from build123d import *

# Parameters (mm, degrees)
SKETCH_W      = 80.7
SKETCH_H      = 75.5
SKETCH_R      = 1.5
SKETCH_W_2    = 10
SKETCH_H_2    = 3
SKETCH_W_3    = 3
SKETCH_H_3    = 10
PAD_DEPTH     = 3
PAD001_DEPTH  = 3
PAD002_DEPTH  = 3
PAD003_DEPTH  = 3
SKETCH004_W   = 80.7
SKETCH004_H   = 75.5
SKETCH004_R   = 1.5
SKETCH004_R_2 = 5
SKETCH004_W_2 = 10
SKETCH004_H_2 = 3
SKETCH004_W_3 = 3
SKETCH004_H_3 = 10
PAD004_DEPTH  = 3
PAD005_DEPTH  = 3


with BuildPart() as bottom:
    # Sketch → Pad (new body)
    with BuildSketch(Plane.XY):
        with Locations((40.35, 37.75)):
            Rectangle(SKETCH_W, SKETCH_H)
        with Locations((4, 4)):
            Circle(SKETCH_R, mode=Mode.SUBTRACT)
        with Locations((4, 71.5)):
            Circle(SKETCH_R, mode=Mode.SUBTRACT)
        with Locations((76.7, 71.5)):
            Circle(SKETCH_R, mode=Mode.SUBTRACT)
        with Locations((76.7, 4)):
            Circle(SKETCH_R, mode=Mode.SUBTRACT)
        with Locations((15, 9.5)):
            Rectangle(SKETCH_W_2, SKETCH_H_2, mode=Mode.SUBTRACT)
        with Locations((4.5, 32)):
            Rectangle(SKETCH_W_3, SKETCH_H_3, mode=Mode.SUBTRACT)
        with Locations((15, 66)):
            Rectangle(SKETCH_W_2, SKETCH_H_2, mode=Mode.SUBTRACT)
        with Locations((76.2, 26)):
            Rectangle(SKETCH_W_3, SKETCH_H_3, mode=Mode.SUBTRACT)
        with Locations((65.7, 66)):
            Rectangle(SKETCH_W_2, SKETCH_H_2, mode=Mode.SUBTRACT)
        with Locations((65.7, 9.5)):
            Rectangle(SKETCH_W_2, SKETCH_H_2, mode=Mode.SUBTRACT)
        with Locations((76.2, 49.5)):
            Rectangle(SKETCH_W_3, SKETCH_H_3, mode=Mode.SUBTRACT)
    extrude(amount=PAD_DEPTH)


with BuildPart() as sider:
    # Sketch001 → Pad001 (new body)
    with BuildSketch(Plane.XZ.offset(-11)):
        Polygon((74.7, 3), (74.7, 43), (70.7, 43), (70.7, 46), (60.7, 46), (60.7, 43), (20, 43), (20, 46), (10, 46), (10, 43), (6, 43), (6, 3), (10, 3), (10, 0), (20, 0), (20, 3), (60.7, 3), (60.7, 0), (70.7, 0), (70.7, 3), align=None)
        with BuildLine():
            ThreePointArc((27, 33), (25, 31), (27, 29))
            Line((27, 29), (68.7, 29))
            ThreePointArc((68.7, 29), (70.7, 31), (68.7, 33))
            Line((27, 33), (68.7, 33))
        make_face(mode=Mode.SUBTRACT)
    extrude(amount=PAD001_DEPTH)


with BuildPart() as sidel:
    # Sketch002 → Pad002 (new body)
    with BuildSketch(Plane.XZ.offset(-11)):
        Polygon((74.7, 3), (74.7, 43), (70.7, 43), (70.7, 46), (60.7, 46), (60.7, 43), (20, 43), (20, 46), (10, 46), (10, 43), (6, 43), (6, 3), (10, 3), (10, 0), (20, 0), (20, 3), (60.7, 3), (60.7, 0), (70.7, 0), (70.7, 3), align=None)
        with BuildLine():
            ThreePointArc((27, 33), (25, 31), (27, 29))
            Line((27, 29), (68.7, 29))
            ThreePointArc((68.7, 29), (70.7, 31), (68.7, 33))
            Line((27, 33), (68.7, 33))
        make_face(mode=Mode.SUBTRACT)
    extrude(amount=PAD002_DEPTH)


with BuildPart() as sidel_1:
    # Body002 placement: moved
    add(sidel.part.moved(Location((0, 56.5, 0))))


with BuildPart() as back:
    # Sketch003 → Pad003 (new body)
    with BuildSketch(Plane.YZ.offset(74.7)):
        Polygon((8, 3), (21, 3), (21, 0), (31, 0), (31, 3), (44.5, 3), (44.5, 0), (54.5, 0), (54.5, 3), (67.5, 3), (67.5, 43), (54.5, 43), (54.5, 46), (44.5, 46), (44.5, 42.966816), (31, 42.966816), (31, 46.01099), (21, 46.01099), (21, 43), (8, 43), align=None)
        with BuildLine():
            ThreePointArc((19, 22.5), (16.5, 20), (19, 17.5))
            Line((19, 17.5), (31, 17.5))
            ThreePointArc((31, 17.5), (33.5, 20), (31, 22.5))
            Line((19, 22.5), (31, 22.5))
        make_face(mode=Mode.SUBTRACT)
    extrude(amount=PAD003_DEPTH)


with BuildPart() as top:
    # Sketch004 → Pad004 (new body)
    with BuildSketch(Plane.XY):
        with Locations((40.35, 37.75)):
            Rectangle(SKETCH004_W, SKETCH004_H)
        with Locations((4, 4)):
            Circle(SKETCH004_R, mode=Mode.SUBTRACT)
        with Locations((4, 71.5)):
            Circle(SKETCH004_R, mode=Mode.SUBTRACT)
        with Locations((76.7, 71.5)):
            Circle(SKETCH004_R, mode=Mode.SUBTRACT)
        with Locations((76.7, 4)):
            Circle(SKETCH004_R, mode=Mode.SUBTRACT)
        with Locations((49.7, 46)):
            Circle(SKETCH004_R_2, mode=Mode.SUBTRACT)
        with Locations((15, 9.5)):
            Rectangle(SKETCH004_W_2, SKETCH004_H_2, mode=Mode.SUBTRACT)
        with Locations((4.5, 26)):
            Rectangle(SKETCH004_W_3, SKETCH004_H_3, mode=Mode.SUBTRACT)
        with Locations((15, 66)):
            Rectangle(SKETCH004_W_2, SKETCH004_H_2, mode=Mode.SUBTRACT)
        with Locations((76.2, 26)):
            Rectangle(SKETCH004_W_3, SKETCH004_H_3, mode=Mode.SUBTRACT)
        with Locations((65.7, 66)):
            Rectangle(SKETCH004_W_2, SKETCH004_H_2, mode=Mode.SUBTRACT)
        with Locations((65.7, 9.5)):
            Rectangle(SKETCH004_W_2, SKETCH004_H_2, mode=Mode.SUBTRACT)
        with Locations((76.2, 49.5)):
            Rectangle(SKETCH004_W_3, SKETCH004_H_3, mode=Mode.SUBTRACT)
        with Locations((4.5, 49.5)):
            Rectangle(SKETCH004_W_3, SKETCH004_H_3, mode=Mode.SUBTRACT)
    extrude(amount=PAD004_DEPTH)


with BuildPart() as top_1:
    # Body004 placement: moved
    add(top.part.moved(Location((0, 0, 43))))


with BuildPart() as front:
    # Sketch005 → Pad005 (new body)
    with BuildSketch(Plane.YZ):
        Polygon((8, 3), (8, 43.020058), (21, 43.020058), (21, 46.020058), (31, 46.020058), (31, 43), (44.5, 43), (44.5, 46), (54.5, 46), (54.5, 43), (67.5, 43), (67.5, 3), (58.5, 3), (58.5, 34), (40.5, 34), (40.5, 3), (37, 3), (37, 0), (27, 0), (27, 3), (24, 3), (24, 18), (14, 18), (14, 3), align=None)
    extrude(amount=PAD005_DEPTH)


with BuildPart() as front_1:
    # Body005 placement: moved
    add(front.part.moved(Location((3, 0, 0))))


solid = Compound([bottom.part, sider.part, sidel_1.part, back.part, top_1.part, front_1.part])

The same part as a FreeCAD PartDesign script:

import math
import FreeCAD as App
import Part
import Sketcher

V = App.Vector
Q = App.Units.Quantity


def add_polygon(sketch, points):
    """Adds a closed chain of lines whose ends are joined by coincident constraints."""
    first, n = sketch.GeometryCount, len(points)
    for a, b in zip(points, points[1:] + points[:1]):
        sketch.addGeometry(Part.LineSegment(App.Vector(*a, 0), App.Vector(*b, 0)), False)
    for i in range(n):
        sketch.addConstraint(Sketcher.Constraint("Coincident", first + i, 2, first + (i + 1) % n, 1))

doc = App.newDocument("Part")
body = doc.addObject("PartDesign::Body", "Body")

sketch1 = body.newObject("Sketcher::SketchObject", "Sketch")
sketch1.AttachmentSupport = (doc.getObject("XY_Plane"), [""])
sketch1.MapMode = "FlatFace"
add_polygon(sketch1, [(0, 75.5), (0, 0), (80.7, 0), (80.7, 75.5)])
sketch1.addGeometry(Part.Circle(V(4, 4, 0), V(0, 0, 1), 1.5), False)
add_polygon(sketch1, [(20, 8), (10, 8), (10, 11), (20, 11)])
add_polygon(sketch1, [(6, 27), (3, 27), (3, 37), (6, 37)])
add_polygon(sketch1, [(70.7, 8), (60.7, 8), (60.7, 11), (70.7, 11)])
sketch1.addGeometry(Part.Circle(V(76.7, 4, 0), V(0, 0, 1), 1.5), False)
add_polygon(sketch1, [(77.7, 21), (74.7, 21), (74.7, 31), (77.7, 31)])
sketch1.addGeometry(Part.Circle(V(4, 71.5, 0), V(0, 0, 1), 1.5), False)
add_polygon(sketch1, [(20, 64.5), (10, 64.5), (10, 67.5), (20, 67.5)])
add_polygon(sketch1, [(77.7, 44.5), (74.7, 44.5), (74.7, 54.5), (77.7, 54.5)])
add_polygon(sketch1, [(70.7, 64.5), (60.7, 64.5), (60.7, 67.5), (70.7, 67.5)])
sketch1.addGeometry(Part.Circle(V(76.7, 71.5, 0), V(0, 0, 1), 1.5), False)
sketch1.addConstraint(Sketcher.Constraint("Vertical", 0))
sketch1.addConstraint(Sketcher.Constraint("Horizontal", 1))
sketch1.addConstraint(Sketcher.Constraint("Vertical", 2))
sketch1.addConstraint(Sketcher.Constraint("Horizontal", 3))
sketch1.addConstraint(Sketcher.Constraint("Horizontal", 5))
sketch1.addConstraint(Sketcher.Constraint("Vertical", 6))
sketch1.addConstraint(Sketcher.Constraint("Horizontal", 7))
sketch1.addConstraint(Sketcher.Constraint("Vertical", 8))
sketch1.addConstraint(Sketcher.Constraint("Horizontal", 9))
sketch1.addConstraint(Sketcher.Constraint("Vertical", 10))
sketch1.addConstraint(Sketcher.Constraint("Horizontal", 11))
sketch1.addConstraint(Sketcher.Constraint("Vertical", 12))
sketch1.addConstraint(Sketcher.Constraint("Horizontal", 13))
sketch1.addConstraint(Sketcher.Constraint("Vertical", 14))
sketch1.addConstraint(Sketcher.Constraint("Horizontal", 15))
sketch1.addConstraint(Sketcher.Constraint("Vertical", 16))
sketch1.addConstraint(Sketcher.Constraint("Horizontal", 18))
sketch1.addConstraint(Sketcher.Constraint("Vertical", 19))
sketch1.addConstraint(Sketcher.Constraint("Horizontal", 20))
sketch1.addConstraint(Sketcher.Constraint("Vertical", 21))
sketch1.addConstraint(Sketcher.Constraint("Horizontal", 23))
sketch1.addConstraint(Sketcher.Constraint("Vertical", 24))
sketch1.addConstraint(Sketcher.Constraint("Horizontal", 25))
sketch1.addConstraint(Sketcher.Constraint("Vertical", 26))
sketch1.addConstraint(Sketcher.Constraint("Horizontal", 27))
sketch1.addConstraint(Sketcher.Constraint("Vertical", 28))
sketch1.addConstraint(Sketcher.Constraint("Horizontal", 29))
sketch1.addConstraint(Sketcher.Constraint("Vertical", 30))
sketch1.addConstraint(Sketcher.Constraint("Horizontal", 31))
sketch1.addConstraint(Sketcher.Constraint("Vertical", 32))
sketch1.addConstraint(Sketcher.Constraint("Horizontal", 33))
sketch1.addConstraint(Sketcher.Constraint("Vertical", 34))
sketch1.addConstraint(Sketcher.Constraint("Coincident", 0, 2, -1, 1))
sketch1.addConstraint(Sketcher.Constraint("Equal", 4, 17))
sketch1.addConstraint(Sketcher.Constraint("Equal", 17, 22))
sketch1.addConstraint(Sketcher.Constraint("Equal", 22, 35))
sketch1.addConstraint(Sketcher.Constraint("Horizontal", 4, 3, 17, 3))
sketch1.addConstraint(Sketcher.Constraint("Horizontal", 22, 3, 35, 3))
sketch1.addConstraint(Sketcher.Constraint("Horizontal", 8, 2, 13, 2))
sketch1.addConstraint(Sketcher.Constraint("Horizontal", 7, 2, 14, 2))
sketch1.addConstraint(Sketcher.Constraint("Horizontal", 26, 2, 31, 2))
sketch1.addConstraint(Sketcher.Constraint("Horizontal", 25, 2, 32, 2))
sketch1.addConstraint(Sketcher.Constraint("Vertical", 4, 3, 22, 3))
sketch1.addConstraint(Sketcher.Constraint("Vertical", 17, 3, 35, 3))
sketch1.addConstraint(Sketcher.Constraint("Vertical", 6, 2, 23, 2))
sketch1.addConstraint(Sketcher.Constraint("Vertical", 8, 2, 25, 2))
sketch1.addConstraint(Sketcher.Constraint("Vertical", 19, 2, 27, 2))
sketch1.addConstraint(Sketcher.Constraint("Vertical", 21, 2, 29, 2))
sketch1.addConstraint(Sketcher.Constraint("Vertical", 14, 2, 31, 2))
sketch1.addConstraint(Sketcher.Constraint("Vertical", 16, 2, 33, 2))
sketch1.addConstraint(Sketcher.Constraint("Equal", 7, 13))
sketch1.addConstraint(Sketcher.Constraint("Equal", 11, 18))
sketch1.addConstraint(Sketcher.Constraint("Equal", 29, 6))
sketch1.addConstraint(Sketcher.Constraint("Equal", 33, 10))
sketch1.addConstraint(Sketcher.Constraint("Equal", 12, 19))
sketch1.addConstraint(Sketcher.Constraint("Equal", 16, 24))
sketch1.addConstraint(Sketcher.Constraint("Equal", 21, 28))
sketch1.addConstraint(Sketcher.Constraint("Diameter", 4, Q("3 mm")))
sketch1.addConstraint(Sketcher.Constraint("DistanceX", 5, 2, 5, 1, Q("10 mm")))
sketch1.addConstraint(Sketcher.Constraint("DistanceX", 9, 2, 9, 1, Q("3 mm")))
sketch1.addConstraint(Sketcher.Constraint("DistanceX", 1, 1, 1, 2, Q("80.7 mm")))
sketch1.addConstraint(Sketcher.Constraint("DistanceY", 0, 2, 0, 1, Q("75.5 mm")))
sketch1.addConstraint(Sketcher.Constraint("DistanceX", -1, 1, 4, 3, Q("4 mm")))
sketch1.addConstraint(Sketcher.Constraint("DistanceY", -1, 1, 4, 3, Q("4 mm")))
sketch1.addConstraint(Sketcher.Constraint("DistanceX", -1, 1, 5, 2, Q("10 mm")))
sketch1.addConstraint(Sketcher.Constraint("DistanceY", -1, 1, 5, 2, Q("8 mm")))
sketch1.addConstraint(Sketcher.Constraint("DistanceX", -1, 1, 9, 2, Q("3 mm")))
sketch1.addConstraint(Sketcher.Constraint("DistanceY", -1, 1, 9, 2, Q("27 mm")))
sketch1.addConstraint(Sketcher.Constraint("DistanceY", -1, 1, 18, 2, Q("21 mm")))
sketch1.addConstraint(Sketcher.Constraint("DistanceX", 17, 3, 1, 2, Q("4 mm")))
sketch1.addConstraint(Sketcher.Constraint("DistanceY", 35, 3, 2, 2, Q("4 mm")))
sketch1.addConstraint(Sketcher.Constraint("DistanceX", 13, 2, 17, 3, Q("16 mm")))
sketch1.addConstraint(Sketcher.Constraint("DistanceX", 15, 2, 18, 2, Q("4 mm")))
sketch1.addConstraint(Sketcher.Constraint("DistanceY", 23, 2, 22, 3, Q("7 mm")))
sketch1.addConstraint(Sketcher.Constraint("DistanceY", 27, 2, 35, 3, Q("27 mm")))
pad1 = body.newObject("PartDesign::Pad", "Pad")
pad1.Profile = sketch1
pad1.Length = 3
body2 = doc.addObject("PartDesign::Body", "Body001")

sketch2 = body2.newObject("Sketcher::SketchObject", "Sketch001")
sketch2.AttachmentSupport = (doc.getObject("XZ_Plane001"), [""])
sketch2.MapMode = "FlatFace"
sketch2.AttachmentOffset = App.Placement(V(0, 0, -11), App.Rotation())
add_polygon(sketch2, [(74.7, 3), (74.7, 43), (70.7, 43), (70.7, 46), (60.7, 46), (60.7, 43), (20, 43), (20, 46), (10, 46), (10, 43), (6, 43), (6, 3), (10, 3), (10, 0), (20, 0), (20, 3), (60.7, 3), (60.7, 0), (70.7, 0), (70.7, 3)])
sketch2.addGeometry(Part.ArcOfCircle(Part.Circle(V(27, 31, 0), V(0, 0, 1), 2), math.radians(90), math.radians(270)), False)
sketch2.addGeometry(Part.LineSegment(V(27, 33, 0), V(68.7, 33, 0)), False)
sketch2.addGeometry(Part.ArcOfCircle(Part.Circle(V(68.7, 31, 0), V(0, 0, 1), 2), math.radians(-90), math.radians(90)), False)
sketch2.addGeometry(Part.LineSegment(V(68.7, 29, 0), V(27, 29, 0)), False)
sketch2.addConstraint(Sketcher.Constraint("Tangent", 20, 1, 21, 1))
sketch2.addConstraint(Sketcher.Constraint("Tangent", 21, 2, 22, 2))
sketch2.addConstraint(Sketcher.Constraint("Tangent", 22, 1, 23, 1))
sketch2.addConstraint(Sketcher.Constraint("Tangent", 23, 2, 20, 2))
sketch2.addConstraint(Sketcher.Constraint("Vertical", 0))
sketch2.addConstraint(Sketcher.Constraint("Horizontal", 1))
sketch2.addConstraint(Sketcher.Constraint("Vertical", 2))
sketch2.addConstraint(Sketcher.Constraint("Horizontal", 3))
sketch2.addConstraint(Sketcher.Constraint("Vertical", 4))
sketch2.addConstraint(Sketcher.Constraint("Horizontal", 5))
sketch2.addConstraint(Sketcher.Constraint("Vertical", 6))
sketch2.addConstraint(Sketcher.Constraint("Horizontal", 7))
sketch2.addConstraint(Sketcher.Constraint("Vertical", 8))
sketch2.addConstraint(Sketcher.Constraint("Horizontal", 9))
sketch2.addConstraint(Sketcher.Constraint("Vertical", 10))
sketch2.addConstraint(Sketcher.Constraint("Horizontal", 11))
sketch2.addConstraint(Sketcher.Constraint("Vertical", 12))
sketch2.addConstraint(Sketcher.Constraint("Horizontal", 13))
sketch2.addConstraint(Sketcher.Constraint("Vertical", 14))
sketch2.addConstraint(Sketcher.Constraint("Horizontal", 15))
sketch2.addConstraint(Sketcher.Constraint("Vertical", 16))
sketch2.addConstraint(Sketcher.Constraint("Horizontal", 17))
sketch2.addConstraint(Sketcher.Constraint("Vertical", 18))
sketch2.addConstraint(Sketcher.Constraint("Horizontal", 19))
sketch2.addConstraint(Sketcher.Constraint("Horizontal", 21))
sketch2.addConstraint(Sketcher.Constraint("Horizontal", 23))
sketch2.addConstraint(Sketcher.Constraint("PointOnObject", 12, 2, -1))
sketch2.addConstraint(Sketcher.Constraint("PointOnObject", 16, 2, -1))
sketch2.addConstraint(Sketcher.Constraint("Horizontal", 1, 2, 4, 2))
sketch2.addConstraint(Sketcher.Constraint("Horizontal", 3, 2, 6, 2))
sketch2.addConstraint(Sketcher.Constraint("Horizontal", 5, 2, 8, 2))
sketch2.addConstraint(Sketcher.Constraint("Horizontal", 11, 2, 14, 2))
sketch2.addConstraint(Sketcher.Constraint("Horizontal", 15, 2, 18, 2))
sketch2.addConstraint(Sketcher.Constraint("Vertical", 8, 2, 11, 2))
sketch2.addConstraint(Sketcher.Constraint("Vertical", 6, 2, 13, 2))
sketch2.addConstraint(Sketcher.Constraint("Vertical", 4, 2, 15, 2))
sketch2.addConstraint(Sketcher.Constraint("Vertical", 2, 2, 17, 2))
sketch2.addConstraint(Sketcher.Constraint("Equal", 3, 7))
sketch2.addConstraint(Sketcher.Constraint("Equal", 1, 9))
sketch2.addConstraint(Sketcher.Constraint("Equal", 8, 12))
sketch2.addConstraint(Sketcher.Constraint("Radius", 20, Q("2 mm")))
sketch2.addConstraint(Sketcher.Constraint("DistanceX", 1, 2, 1, 1, Q("4 mm")))
sketch2.addConstraint(Sketcher.Constraint("DistanceX", 3, 2, 3, 1, Q("10 mm")))
sketch2.addConstraint(Sketcher.Constraint("DistanceY", 0, 1, 0, 2, Q("40 mm")))
sketch2.addConstraint(Sketcher.Constraint("DistanceY", 2, 1, 2, 2, Q("3 mm")))
sketch2.addConstraint(Sketcher.Constraint("DistanceX", 5, 2, 5, 1, Q("40.7 mm")))
sketch2.addConstraint(Sketcher.Constraint("DistanceX", 21, 1, 21, 2, Q("41.7 mm")))
sketch2.addConstraint(Sketcher.Constraint("DistanceX", -1, 1, 20, 3, Q("27 mm")))
sketch2.addConstraint(Sketcher.Constraint("DistanceY", -1, 1, 20, 3, Q("31 mm")))
sketch2.addConstraint(Sketcher.Constraint("DistanceX", -1, 1, 5, 2, Q("20 mm")))
pad2 = body2.newObject("PartDesign::Pad", "Pad001")
pad2.Profile = sketch2
pad2.Length = 3
body3 = doc.addObject("PartDesign::Body", "Body002")

sketch3 = body3.newObject("Sketcher::SketchObject", "Sketch002")
sketch3.AttachmentSupport = (doc.getObject("XZ_Plane002"), [""])
sketch3.MapMode = "FlatFace"
sketch3.AttachmentOffset = App.Placement(V(0, 0, -11), App.Rotation())
add_polygon(sketch3, [(74.7, 3), (74.7, 43), (70.7, 43), (70.7, 46), (60.7, 46), (60.7, 43), (20, 43), (20, 46), (10, 46), (10, 43), (6, 43), (6, 3), (10, 3), (10, 0), (20, 0), (20, 3), (60.7, 3), (60.7, 0), (70.7, 0), (70.7, 3)])
sketch3.addGeometry(Part.ArcOfCircle(Part.Circle(V(27, 31, 0), V(0, 0, 1), 2), math.radians(90), math.radians(270)), False)
sketch3.addGeometry(Part.LineSegment(V(27, 33, 0), V(68.7, 33, 0)), False)
sketch3.addGeometry(Part.ArcOfCircle(Part.Circle(V(68.7, 31, 0), V(0, 0, 1), 2), math.radians(-90), math.radians(90)), False)
sketch3.addGeometry(Part.LineSegment(V(68.7, 29, 0), V(27, 29, 0)), False)
sketch3.addConstraint(Sketcher.Constraint("Tangent", 20, 1, 21, 1))
sketch3.addConstraint(Sketcher.Constraint("Tangent", 21, 2, 22, 2))
sketch3.addConstraint(Sketcher.Constraint("Tangent", 22, 1, 23, 1))
sketch3.addConstraint(Sketcher.Constraint("Tangent", 23, 2, 20, 2))
sketch3.addConstraint(Sketcher.Constraint("Vertical", 0))
sketch3.addConstraint(Sketcher.Constraint("Horizontal", 1))
sketch3.addConstraint(Sketcher.Constraint("Vertical", 2))
sketch3.addConstraint(Sketcher.Constraint("Horizontal", 3))
sketch3.addConstraint(Sketcher.Constraint("Vertical", 4))
sketch3.addConstraint(Sketcher.Constraint("Horizontal", 5))
sketch3.addConstraint(Sketcher.Constraint("Vertical", 6))
sketch3.addConstraint(Sketcher.Constraint("Horizontal", 7))
sketch3.addConstraint(Sketcher.Constraint("Vertical", 8))
sketch3.addConstraint(Sketcher.Constraint("Horizontal", 9))
sketch3.addConstraint(Sketcher.Constraint("Vertical", 10))
sketch3.addConstraint(Sketcher.Constraint("Horizontal", 11))
sketch3.addConstraint(Sketcher.Constraint("Vertical", 12))
sketch3.addConstraint(Sketcher.Constraint("Horizontal", 13))
sketch3.addConstraint(Sketcher.Constraint("Vertical", 14))
sketch3.addConstraint(Sketcher.Constraint("Horizontal", 15))
sketch3.addConstraint(Sketcher.Constraint("Vertical", 16))
sketch3.addConstraint(Sketcher.Constraint("Horizontal", 17))
sketch3.addConstraint(Sketcher.Constraint("Vertical", 18))
sketch3.addConstraint(Sketcher.Constraint("Horizontal", 19))
sketch3.addConstraint(Sketcher.Constraint("Horizontal", 21))
sketch3.addConstraint(Sketcher.Constraint("Horizontal", 23))
sketch3.addConstraint(Sketcher.Constraint("PointOnObject", 12, 2, -1))
sketch3.addConstraint(Sketcher.Constraint("PointOnObject", 16, 2, -1))
sketch3.addConstraint(Sketcher.Constraint("Horizontal", 1, 2, 4, 2))
sketch3.addConstraint(Sketcher.Constraint("Horizontal", 3, 2, 6, 2))
sketch3.addConstraint(Sketcher.Constraint("Horizontal", 5, 2, 8, 2))
sketch3.addConstraint(Sketcher.Constraint("Horizontal", 11, 2, 14, 2))
sketch3.addConstraint(Sketcher.Constraint("Horizontal", 15, 2, 18, 2))
sketch3.addConstraint(Sketcher.Constraint("Vertical", 8, 2, 11, 2))
sketch3.addConstraint(Sketcher.Constraint("Vertical", 6, 2, 13, 2))
sketch3.addConstraint(Sketcher.Constraint("Vertical", 4, 2, 15, 2))
sketch3.addConstraint(Sketcher.Constraint("Vertical", 2, 2, 17, 2))
sketch3.addConstraint(Sketcher.Constraint("Equal", 3, 7))
sketch3.addConstraint(Sketcher.Constraint("Equal", 1, 9))
sketch3.addConstraint(Sketcher.Constraint("Equal", 8, 12))
sketch3.addConstraint(Sketcher.Constraint("Radius", 20, Q("2 mm")))
sketch3.addConstraint(Sketcher.Constraint("DistanceX", 1, 2, 1, 1, Q("4 mm")))
sketch3.addConstraint(Sketcher.Constraint("DistanceX", 3, 2, 3, 1, Q("10 mm")))
sketch3.addConstraint(Sketcher.Constraint("DistanceY", 0, 1, 0, 2, Q("40 mm")))
sketch3.addConstraint(Sketcher.Constraint("DistanceY", 2, 1, 2, 2, Q("3 mm")))
sketch3.addConstraint(Sketcher.Constraint("DistanceX", 5, 2, 5, 1, Q("40.7 mm")))
sketch3.addConstraint(Sketcher.Constraint("DistanceX", 21, 1, 21, 2, Q("41.7 mm")))
sketch3.addConstraint(Sketcher.Constraint("DistanceX", -1, 1, 20, 3, Q("27 mm")))
sketch3.addConstraint(Sketcher.Constraint("DistanceY", -1, 1, 20, 3, Q("31 mm")))
sketch3.addConstraint(Sketcher.Constraint("DistanceX", -1, 1, 5, 2, Q("20 mm")))
pad3 = body3.newObject("PartDesign::Pad", "Pad002")
pad3.Profile = sketch3
pad3.Length = 3
body4 = doc.addObject("PartDesign::Body", "Body003")
doc.recompute()

body3.Placement = App.Placement(V(0, 56.5, 0), App.Rotation(V(0, 0, 1), 0))
boolean = body4.newObject("PartDesign::Boolean", "Boolean")
boolean.Type = "Fuse"
boolean.addObjects([body3])
body5 = doc.addObject("PartDesign::Body", "Body004")

sketch4 = body5.newObject("Sketcher::SketchObject", "Sketch003")
sketch4.AttachmentSupport = (doc.getObject("YZ_Plane004"), [""])
sketch4.MapMode = "FlatFace"
sketch4.AttachmentOffset = App.Placement(V(0, 0, 74.7), App.Rotation())
add_polygon(sketch4, [(8, 3), (21, 3), (21, 0), (31, 0), (31, 3), (44.5, 3), (44.5, 0), (54.5, 0), (54.5, 3), (67.5, 3), (67.5, 43), (54.5, 43), (54.5, 46), (44.5, 46), (44.5, 43), (31, 43), (31, 46), (21, 46), (21, 43), (8, 43)])
sketch4.addGeometry(Part.ArcOfCircle(Part.Circle(V(19, 20, 0), V(0, 0, 1), 2.5), math.radians(90), math.radians(270)), False)
sketch4.addGeometry(Part.LineSegment(V(19, 22.5, 0), V(31, 22.5, 0)), False)
sketch4.addGeometry(Part.ArcOfCircle(Part.Circle(V(31, 20, 0), V(0, 0, 1), 2.5), math.radians(-90), math.radians(90)), False)
sketch4.addGeometry(Part.LineSegment(V(31, 17.5, 0), V(19, 17.5, 0)), False)
sketch4.addConstraint(Sketcher.Constraint("Tangent", 20, 1, 21, 1))
sketch4.addConstraint(Sketcher.Constraint("Tangent", 21, 2, 22, 2))
sketch4.addConstraint(Sketcher.Constraint("Tangent", 22, 1, 23, 1))
sketch4.addConstraint(Sketcher.Constraint("Tangent", 23, 2, 20, 2))
sketch4.addConstraint(Sketcher.Constraint("Horizontal", 0))
sketch4.addConstraint(Sketcher.Constraint("Vertical", 1))
sketch4.addConstraint(Sketcher.Constraint("Horizontal", 2))
sketch4.addConstraint(Sketcher.Constraint("Vertical", 3))
sketch4.addConstraint(Sketcher.Constraint("Horizontal", 4))
sketch4.addConstraint(Sketcher.Constraint("Vertical", 5))
sketch4.addConstraint(Sketcher.Constraint("Horizontal", 6))
sketch4.addConstraint(Sketcher.Constraint("Vertical", 7))
sketch4.addConstraint(Sketcher.Constraint("Horizontal", 8))
sketch4.addConstraint(Sketcher.Constraint("Vertical", 9))
sketch4.addConstraint(Sketcher.Constraint("Horizontal", 10))
sketch4.addConstraint(Sketcher.Constraint("Vertical", 11))
sketch4.addConstraint(Sketcher.Constraint("Horizontal", 12))
sketch4.addConstraint(Sketcher.Constraint("Vertical", 13))
sketch4.addConstraint(Sketcher.Constraint("Horizontal", 14))
sketch4.addConstraint(Sketcher.Constraint("Vertical", 15))
sketch4.addConstraint(Sketcher.Constraint("Horizontal", 16))
sketch4.addConstraint(Sketcher.Constraint("Vertical", 17))
sketch4.addConstraint(Sketcher.Constraint("Horizontal", 18))
sketch4.addConstraint(Sketcher.Constraint("Vertical", 19))
sketch4.addConstraint(Sketcher.Constraint("Horizontal", 21))
sketch4.addConstraint(Sketcher.Constraint("Horizontal", 23))
sketch4.addConstraint(Sketcher.Constraint("PointOnObject", 1, 2, -1))
sketch4.addConstraint(Sketcher.Constraint("PointOnObject", 5, 2, -1))
sketch4.addConstraint(Sketcher.Constraint("Horizontal", 0, 2, 3, 2))
sketch4.addConstraint(Sketcher.Constraint("Horizontal", 4, 2, 7, 2))
sketch4.addConstraint(Sketcher.Constraint("Horizontal", 10, 2, 17, 2))
sketch4.addConstraint(Sketcher.Constraint("Vertical", 22, 3, 2, 2))
sketch4.addConstraint(Sketcher.Constraint("Vertical", 7, 2, 10, 2))
sketch4.addConstraint(Sketcher.Constraint("Vertical", 5, 2, 12, 2))
sketch4.addConstraint(Sketcher.Constraint("Vertical", 3, 2, 14, 2))
sketch4.addConstraint(Sketcher.Constraint("Vertical", 1, 2, 16, 2))
sketch4.addConstraint(Sketcher.Constraint("Equal", 2, 6))
sketch4.addConstraint(Sketcher.Constraint("Equal", 0, 8))
sketch4.addConstraint(Sketcher.Constraint("Equal", 7, 11))
sketch4.addConstraint(Sketcher.Constraint("Radius", 20, Q("2.5 mm")))
sketch4.addConstraint(Sketcher.Constraint("DistanceX", 0, 1, 0, 2, Q("13 mm")))
sketch4.addConstraint(Sketcher.Constraint("DistanceX", 2, 1, 2, 2, Q("10 mm")))
sketch4.addConstraint(Sketcher.Constraint("DistanceX", 21, 1, 21, 2, Q("12 mm")))
sketch4.addConstraint(Sketcher.Constraint("DistanceY", 1, 2, 1, 1, Q("3 mm")))
sketch4.addConstraint(Sketcher.Constraint("DistanceY", 9, 1, 9, 2, Q("40 mm")))
sketch4.addConstraint(Sketcher.Constraint("DistanceX", 4, 1, 4, 2, Q("13.5 mm")))
sketch4.addConstraint(Sketcher.Constraint("DistanceX", -1, 1, 20, 3, Q("19 mm")))
sketch4.addConstraint(Sketcher.Constraint("DistanceY", -1, 1, 20, 3, Q("20 mm")))
sketch4.addConstraint(Sketcher.Constraint("DistanceY", 17, 2, 17, 1, Q("3.01099 mm")))
sketch4.addConstraint(Sketcher.Constraint("DistanceY", 13, 2, 13, 1, Q("3.033184 mm")))
pad4 = body5.newObject("PartDesign::Pad", "Pad003")
pad4.Profile = sketch4
pad4.Length = 3
body6 = doc.addObject("PartDesign::Body", "Body005")

sketch5 = body6.newObject("Sketcher::SketchObject", "Sketch004")
sketch5.AttachmentSupport = (doc.getObject("XY_Plane005"), [""])
sketch5.MapMode = "FlatFace"
add_polygon(sketch5, [(0, 75.5), (0, 0), (80.7, 0), (80.7, 75.5)])
sketch5.addGeometry(Part.Circle(V(4, 4, 0), V(0, 0, 1), 1.5), False)
add_polygon(sketch5, [(20, 8), (10, 8), (10, 11), (20, 11)])
add_polygon(sketch5, [(6, 21), (3, 21), (3, 31), (6, 31)])
add_polygon(sketch5, [(70.7, 8), (60.7, 8), (60.7, 11), (70.7, 11)])
sketch5.addGeometry(Part.Circle(V(76.7, 4, 0), V(0, 0, 1), 1.5), False)
add_polygon(sketch5, [(77.7, 21), (74.7, 21), (74.7, 31), (77.7, 31)])
add_polygon(sketch5, [(6, 44.5), (3, 44.5), (3, 54.5), (6, 54.5)])
sketch5.addGeometry(Part.Circle(V(4, 71.5, 0), V(0, 0, 1), 1.5), False)
add_polygon(sketch5, [(20, 64.5), (10, 64.5), (10, 67.5), (20, 67.5)])
sketch5.addGeometry(Part.Circle(V(49.7, 46, 0), V(0, 0, 1), 5), False)
add_polygon(sketch5, [(77.7, 44.5), (74.7, 44.5), (74.7, 54.5), (77.7, 54.5)])
add_polygon(sketch5, [(70.7, 64.5), (60.7, 64.5), (60.7, 67.5), (70.7, 67.5)])
sketch5.addGeometry(Part.Circle(V(76.7, 71.5, 0), V(0, 0, 1), 1.5), False)
sketch5.addConstraint(Sketcher.Constraint("Vertical", 0))
sketch5.addConstraint(Sketcher.Constraint("Horizontal", 1))
sketch5.addConstraint(Sketcher.Constraint("Vertical", 2))
sketch5.addConstraint(Sketcher.Constraint("Horizontal", 3))
sketch5.addConstraint(Sketcher.Constraint("Horizontal", 5))
sketch5.addConstraint(Sketcher.Constraint("Vertical", 6))
sketch5.addConstraint(Sketcher.Constraint("Horizontal", 7))
sketch5.addConstraint(Sketcher.Constraint("Vertical", 8))
sketch5.addConstraint(Sketcher.Constraint("Horizontal", 9))
sketch5.addConstraint(Sketcher.Constraint("Vertical", 10))
sketch5.addConstraint(Sketcher.Constraint("Horizontal", 11))
sketch5.addConstraint(Sketcher.Constraint("Vertical", 12))
sketch5.addConstraint(Sketcher.Constraint("Horizontal", 13))
sketch5.addConstraint(Sketcher.Constraint("Vertical", 14))
sketch5.addConstraint(Sketcher.Constraint("Horizontal", 15))
sketch5.addConstraint(Sketcher.Constraint("Vertical", 16))
sketch5.addConstraint(Sketcher.Constraint("Horizontal", 18))
sketch5.addConstraint(Sketcher.Constraint("Vertical", 19))
sketch5.addConstraint(Sketcher.Constraint("Horizontal", 20))
sketch5.addConstraint(Sketcher.Constraint("Vertical", 21))
sketch5.addConstraint(Sketcher.Constraint("Horizontal", 22))
sketch5.addConstraint(Sketcher.Constraint("Vertical", 23))
sketch5.addConstraint(Sketcher.Constraint("Horizontal", 24))
sketch5.addConstraint(Sketcher.Constraint("Vertical", 25))
sketch5.addConstraint(Sketcher.Constraint("Horizontal", 27))
sketch5.addConstraint(Sketcher.Constraint("Vertical", 28))
sketch5.addConstraint(Sketcher.Constraint("Horizontal", 29))
sketch5.addConstraint(Sketcher.Constraint("Vertical", 30))
sketch5.addConstraint(Sketcher.Constraint("Horizontal", 32))
sketch5.addConstraint(Sketcher.Constraint("Vertical", 33))
sketch5.addConstraint(Sketcher.Constraint("Horizontal", 34))
sketch5.addConstraint(Sketcher.Constraint("Vertical", 35))
sketch5.addConstraint(Sketcher.Constraint("Horizontal", 36))
sketch5.addConstraint(Sketcher.Constraint("Vertical", 37))
sketch5.addConstraint(Sketcher.Constraint("Horizontal", 38))
sketch5.addConstraint(Sketcher.Constraint("Vertical", 39))
sketch5.addConstraint(Sketcher.Constraint("Coincident", 0, 2, -1, 1))
sketch5.addConstraint(Sketcher.Constraint("Equal", 4, 17))
sketch5.addConstraint(Sketcher.Constraint("Equal", 17, 26))
sketch5.addConstraint(Sketcher.Constraint("Equal", 26, 40))
sketch5.addConstraint(Sketcher.Constraint("Horizontal", 4, 3, 17, 3))
sketch5.addConstraint(Sketcher.Constraint("Horizontal", 26, 3, 40, 3))
sketch5.addConstraint(Sketcher.Constraint("Horizontal", 8, 2, 13, 2))
sketch5.addConstraint(Sketcher.Constraint("Horizontal", 7, 2, 14, 2))
sketch5.addConstraint(Sketcher.Constraint("Horizontal", 12, 2, 18, 2))
sketch5.addConstraint(Sketcher.Constraint("Horizontal", 11, 2, 19, 2))
sketch5.addConstraint(Sketcher.Constraint("Horizontal", 25, 2, 32, 2))
sketch5.addConstraint(Sketcher.Constraint("Horizontal", 24, 2, 33, 2))
sketch5.addConstraint(Sketcher.Constraint("Horizontal", 30, 2, 36, 2))
sketch5.addConstraint(Sketcher.Constraint("Horizontal", 29, 2, 37, 2))
sketch5.addConstraint(Sketcher.Constraint("Vertical", 4, 3, 26, 3))
sketch5.addConstraint(Sketcher.Constraint("Vertical", 17, 3, 40, 3))
sketch5.addConstraint(Sketcher.Constraint("Vertical", 10, 2, 22, 2))
sketch5.addConstraint(Sketcher.Constraint("Vertical", 12, 2, 24, 2))
sketch5.addConstraint(Sketcher.Constraint("Vertical", 6, 2, 27, 2))
sketch5.addConstraint(Sketcher.Constraint("Vertical", 8, 2, 29, 2))
sketch5.addConstraint(Sketcher.Constraint("Vertical", 19, 2, 32, 2))
sketch5.addConstraint(Sketcher.Constraint("Vertical", 21, 2, 34, 2))
sketch5.addConstraint(Sketcher.Constraint("Vertical", 14, 2, 36, 2))
sketch5.addConstraint(Sketcher.Constraint("Vertical", 16, 2, 38, 2))
sketch5.addConstraint(Sketcher.Constraint("Equal", 7, 13))
sketch5.addConstraint(Sketcher.Constraint("Equal", 11, 18))
sketch5.addConstraint(Sketcher.Constraint("Equal", 34, 6))
sketch5.addConstraint(Sketcher.Constraint("Equal", 38, 10))
sketch5.addConstraint(Sketcher.Constraint("Equal", 21, 23))
sketch5.addConstraint(Sketcher.Constraint("Equal", 16, 28))
sketch5.addConstraint(Sketcher.Constraint("Diameter", 4, Q("3 mm")))
sketch5.addConstraint(Sketcher.Constraint("Diameter", 31, Q("10 mm")))
sketch5.addConstraint(Sketcher.Constraint("DistanceX", 5, 2, 5, 1, Q("10 mm")))
sketch5.addConstraint(Sketcher.Constraint("DistanceX", 9, 2, 9, 1, Q("3 mm")))
sketch5.addConstraint(Sketcher.Constraint("DistanceX", 1, 1, 1, 2, Q("80.7 mm")))
sketch5.addConstraint(Sketcher.Constraint("DistanceY", 0, 2, 0, 1, Q("75.5 mm")))
sketch5.addConstraint(Sketcher.Constraint("DistanceX", -1, 1, 4, 3, Q("4 mm")))
sketch5.addConstraint(Sketcher.Constraint("DistanceY", -1, 1, 4, 3, Q("4 mm")))
sketch5.addConstraint(Sketcher.Constraint("DistanceY", -1, 1, 31, 3, Q("46 mm")))
sketch5.addConstraint(Sketcher.Constraint("DistanceX", -1, 1, 5, 2, Q("10 mm")))
sketch5.addConstraint(Sketcher.Constraint("DistanceY", -1, 1, 5, 2, Q("8 mm")))
sketch5.addConstraint(Sketcher.Constraint("DistanceX", -1, 1, 9, 2, Q("3 mm")))
sketch5.addConstraint(Sketcher.Constraint("DistanceY", -1, 1, 9, 2, Q("21 mm")))
sketch5.addConstraint(Sketcher.Constraint("DistanceX", 31, 3, 17, 3, Q("27 mm")))
sketch5.addConstraint(Sketcher.Constraint("DistanceX", 17, 3, 1, 2, Q("4 mm")))
sketch5.addConstraint(Sketcher.Constraint("DistanceY", 40, 3, 2, 2, Q("4 mm")))
sketch5.addConstraint(Sketcher.Constraint("DistanceX", 13, 2, 17, 3, Q("16 mm")))
sketch5.addConstraint(Sketcher.Constraint("DistanceX", 15, 2, 18, 2, Q("4 mm")))
sketch5.addConstraint(Sketcher.Constraint("DistanceY", 22, 2, 26, 3, Q("27 mm")))
sketch5.addConstraint(Sketcher.Constraint("DistanceY", 27, 2, 26, 3, Q("7 mm")))
pad5 = body6.newObject("PartDesign::Pad", "Pad004")
pad5.Profile = sketch5
pad5.Length = 3
body7 = doc.addObject("PartDesign::Body", "Body006")
doc.recompute()

body6.Placement = App.Placement(V(0, 0, 43), App.Rotation(V(0, 0, 1), 0))
boolean2 = body7.newObject("PartDesign::Boolean", "Boolean001")
boolean2.Type = "Fuse"
boolean2.addObjects([body6])
body8 = doc.addObject("PartDesign::Body", "Body007")

sketch6 = body8.newObject("Sketcher::SketchObject", "Sketch005")
sketch6.AttachmentSupport = (doc.getObject("YZ_Plane007"), [""])
sketch6.MapMode = "FlatFace"
add_polygon(sketch6, [(8, 43), (8, 3), (14, 3), (14, 18), (24, 18), (24, 3), (27, 3), (27, 0), (37, 0), (37, 3), (40.5, 3), (40.5, 34), (58.5, 34), (58.5, 3), (67.5, 3), (67.5, 43), (54.5, 43), (54.5, 46), (44.5, 46), (44.5, 43), (31, 43), (31, 46), (21, 46), (21, 43)])
sketch6.addConstraint(Sketcher.Constraint("Vertical", 0))
sketch6.addConstraint(Sketcher.Constraint("Horizontal", 1))
sketch6.addConstraint(Sketcher.Constraint("Vertical", 2))
sketch6.addConstraint(Sketcher.Constraint("Horizontal", 3))
sketch6.addConstraint(Sketcher.Constraint("Vertical", 4))
sketch6.addConstraint(Sketcher.Constraint("Horizontal", 5))
sketch6.addConstraint(Sketcher.Constraint("Vertical", 6))
sketch6.addConstraint(Sketcher.Constraint("Horizontal", 7))
sketch6.addConstraint(Sketcher.Constraint("Vertical", 8))
sketch6.addConstraint(Sketcher.Constraint("Horizontal", 9))
sketch6.addConstraint(Sketcher.Constraint("Vertical", 10))
sketch6.addConstraint(Sketcher.Constraint("Horizontal", 11))
sketch6.addConstraint(Sketcher.Constraint("Vertical", 12))
sketch6.addConstraint(Sketcher.Constraint("Horizontal", 13))
sketch6.addConstraint(Sketcher.Constraint("Vertical", 14))
sketch6.addConstraint(Sketcher.Constraint("Horizontal", 15))
sketch6.addConstraint(Sketcher.Constraint("Vertical", 16))
sketch6.addConstraint(Sketcher.Constraint("Horizontal", 17))
sketch6.addConstraint(Sketcher.Constraint("Vertical", 18))
sketch6.addConstraint(Sketcher.Constraint("Horizontal", 19))
sketch6.addConstraint(Sketcher.Constraint("Vertical", 20))
sketch6.addConstraint(Sketcher.Constraint("Horizontal", 21))
sketch6.addConstraint(Sketcher.Constraint("Vertical", 22))
sketch6.addConstraint(Sketcher.Constraint("Horizontal", 23))
sketch6.addConstraint(Sketcher.Constraint("PointOnObject", 6, 2, -1))
sketch6.addConstraint(Sketcher.Constraint("Horizontal", 1, 2, 4, 2))
sketch6.addConstraint(Sketcher.Constraint("Horizontal", 5, 2, 8, 2))
sketch6.addConstraint(Sketcher.Constraint("Horizontal", 9, 2, 12, 2))
sketch6.addConstraint(Sketcher.Constraint("Horizontal", 15, 2, 18, 2))
sketch6.addConstraint(Sketcher.Constraint("Equal", 3, 7))
sketch6.addConstraint(Sketcher.Constraint("Equal", 7, 17))
sketch6.addConstraint(Sketcher.Constraint("Equal", 17, 21))
sketch6.addConstraint(Sketcher.Constraint("Equal", 15, 23))
sketch6.addConstraint(Sketcher.Constraint("Equal", 5, 6))
sketch6.addConstraint(Sketcher.Constraint("Equal", 8, 16))
sketch6.addConstraint(Sketcher.Constraint("Equal", 18, 22))
sketch6.addConstraint(Sketcher.Constraint("DistanceX", 1, 1, 1, 2, Q("6 mm")))
sketch6.addConstraint(Sketcher.Constraint("DistanceX", 3, 1, 3, 2, Q("10 mm")))
sketch6.addConstraint(Sketcher.Constraint("DistanceX", 5, 1, 5, 2, Q("3 mm")))
sketch6.addConstraint(Sketcher.Constraint("DistanceX", 11, 1, 11, 2, Q("18 mm")))
sketch6.addConstraint(Sketcher.Constraint("DistanceX", 13, 1, 13, 2, Q("9 mm")))
sketch6.addConstraint(Sketcher.Constraint("DistanceX", 15, 2, 15, 1, Q("13 mm")))
sketch6.addConstraint(Sketcher.Constraint("DistanceY", 2, 1, 2, 2, Q("15 mm")))
sketch6.addConstraint(Sketcher.Constraint("DistanceY", 10, 1, 10, 2, Q("31 mm")))
sketch6.addConstraint(Sketcher.Constraint("DistanceY", 14, 1, 14, 2, Q("40 mm")))
sketch6.addConstraint(Sketcher.Constraint("DistanceX", 9, 1, 9, 2, Q("3.5 mm")))
sketch6.addConstraint(Sketcher.Constraint("DistanceX", -1, 1, 0, 2, Q("8 mm")))
sketch6.addConstraint(Sketcher.Constraint("DistanceY", 0, 2, 0, 1, Q("40.020058 mm")))
pad6 = body8.newObject("PartDesign::Pad", "Pad005")
pad6.Profile = sketch6
pad6.Length = 3
body9 = doc.addObject("PartDesign::Body", "Body008")
doc.recompute()

body8.Placement = App.Placement(V(3, 0, 0), App.Rotation(V(0, 0, 1), 0))
boolean3 = body9.newObject("PartDesign::Boolean", "Boolean002")
boolean3.Type = "Fuse"
boolean3.addObjects([body8])

doc.recompute()
